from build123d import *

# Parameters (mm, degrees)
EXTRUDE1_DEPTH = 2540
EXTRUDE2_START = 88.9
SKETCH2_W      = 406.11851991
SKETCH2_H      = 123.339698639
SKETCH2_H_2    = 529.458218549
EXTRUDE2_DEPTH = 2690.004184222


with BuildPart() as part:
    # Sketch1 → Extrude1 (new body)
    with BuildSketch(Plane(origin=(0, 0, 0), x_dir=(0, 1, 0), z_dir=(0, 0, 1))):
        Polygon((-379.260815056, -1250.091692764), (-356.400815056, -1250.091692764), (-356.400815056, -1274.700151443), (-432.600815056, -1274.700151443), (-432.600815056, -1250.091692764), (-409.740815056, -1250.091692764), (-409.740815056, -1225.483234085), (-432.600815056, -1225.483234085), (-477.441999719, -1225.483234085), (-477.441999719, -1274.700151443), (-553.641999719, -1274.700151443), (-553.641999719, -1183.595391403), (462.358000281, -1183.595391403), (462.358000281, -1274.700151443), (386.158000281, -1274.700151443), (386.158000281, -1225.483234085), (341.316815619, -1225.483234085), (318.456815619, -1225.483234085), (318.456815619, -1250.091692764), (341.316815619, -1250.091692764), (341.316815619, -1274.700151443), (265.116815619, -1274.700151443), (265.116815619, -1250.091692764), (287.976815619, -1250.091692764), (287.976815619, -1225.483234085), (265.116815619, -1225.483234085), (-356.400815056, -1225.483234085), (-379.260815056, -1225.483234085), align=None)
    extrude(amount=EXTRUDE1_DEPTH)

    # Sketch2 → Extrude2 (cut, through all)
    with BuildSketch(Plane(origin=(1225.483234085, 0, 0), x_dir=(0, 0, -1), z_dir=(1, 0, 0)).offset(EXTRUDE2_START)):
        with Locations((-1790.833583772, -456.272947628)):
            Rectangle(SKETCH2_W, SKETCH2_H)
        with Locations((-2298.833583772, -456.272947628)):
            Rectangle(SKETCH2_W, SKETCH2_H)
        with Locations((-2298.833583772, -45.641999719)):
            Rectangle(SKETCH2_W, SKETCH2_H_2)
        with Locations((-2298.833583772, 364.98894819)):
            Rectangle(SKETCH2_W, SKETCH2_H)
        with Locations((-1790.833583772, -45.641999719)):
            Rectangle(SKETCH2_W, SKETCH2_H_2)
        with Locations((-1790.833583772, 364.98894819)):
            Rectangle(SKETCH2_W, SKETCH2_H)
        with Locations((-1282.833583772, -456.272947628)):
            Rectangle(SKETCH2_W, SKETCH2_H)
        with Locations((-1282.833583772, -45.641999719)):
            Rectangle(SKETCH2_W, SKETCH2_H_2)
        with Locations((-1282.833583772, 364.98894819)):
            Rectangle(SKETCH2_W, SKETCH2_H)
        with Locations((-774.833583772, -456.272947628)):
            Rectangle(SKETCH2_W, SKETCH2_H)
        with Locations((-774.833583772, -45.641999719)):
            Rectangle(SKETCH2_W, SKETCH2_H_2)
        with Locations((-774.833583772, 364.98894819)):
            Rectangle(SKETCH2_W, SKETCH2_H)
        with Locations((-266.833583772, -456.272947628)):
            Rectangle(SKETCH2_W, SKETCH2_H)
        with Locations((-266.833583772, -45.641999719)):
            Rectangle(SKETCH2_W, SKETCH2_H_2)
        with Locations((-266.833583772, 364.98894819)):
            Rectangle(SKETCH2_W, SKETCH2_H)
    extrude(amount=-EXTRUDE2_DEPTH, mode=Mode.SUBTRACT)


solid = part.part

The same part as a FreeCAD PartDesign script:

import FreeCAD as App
import Part
import Sketcher
from FreeCAD import Vector
Q = App.Units.Quantity


def add_polygon(sketch, points):
    """Adds a closed chain of lines whose ends are joined by coincident constraints."""
    first, n = sketch.GeometryCount, len(points)
    for a, b in zip(points, points[1:] + points[:1]):
        sketch.addGeometry(Part.LineSegment(App.Vector(*a, 0), App.Vector(*b, 0)), False)
    for i in range(n):
        sketch.addConstraint(Sketcher.Constraint("Coincident", first + i, 2, first + (i + 1) % n, 1))

doc = App.newDocument("Part")
body = doc.addObject("PartDesign::Body", "Body")

sketch1 = body.newObject("Sketcher::SketchObject", "Sketch")
sketch1.AttachmentSupport = (doc.getObject("XY_Plane"), [""])
sketch1.MapMode = "FlatFace"
add_polygon(sketch1, [(1250.091693, -356.400815), (1250.091693, -379.260815), (1225.483234, -379.260815), (1225.483234, 287.976816), (1250.091693, 287.976816), (1250.091693, 265.116816), (1274.700151, 265.116816), (1274.700151, 341.316816), (1250.091693, 341.316816), (1250.091693, 318.456816), (1225.483234, 318.456816), (1225.483234, 386.158), (1274.700151, 386.158), (1274.700151, 462.358), (1183.595391, 462.358), (1183.595391, -553.642), (1274.700151, -553.642), (1274.700151, -477.442), (1225.483234, -477.442), (1225.483234, -409.740815), (1250.091693, -409.740815), (1250.091693, -432.600815), (1274.700151, -432.600815), (1274.700151, -356.400815)])
sketch1.addConstraint([
    Sketcher.Constraint("Vertical", 0),
    Sketcher.Constraint("Horizontal", 1),
    Sketcher.Constraint("Vertical", 2),
    Sketcher.Constraint("Horizontal", 3),
    Sketcher.Constraint("Vertical", 4),
    Sketcher.Constraint("Horizontal", 5),
    Sketcher.Constraint("Vertical", 6),
    Sketcher.Constraint("Horizontal", 7),
    Sketcher.Constraint("Vertical", 8),
    Sketcher.Constraint("Horizontal", 9),
    Sketcher.Constraint("Vertical", 10),
    Sketcher.Constraint("Horizontal", 11),
    Sketcher.Constraint("Vertical", 12),
    Sketcher.Constraint("Horizontal", 13),
    Sketcher.Constraint("Vertical", 14),
    Sketcher.Constraint("Horizontal", 15),
    Sketcher.Constraint("Vertical", 16),
    Sketcher.Constraint("Horizontal", 17),
    Sketcher.Constraint("Vertical", 18),
    Sketcher.Constraint("Horizontal", 19),
    Sketcher.Constraint("Vertical", 20),
    Sketcher.Constraint("Horizontal", 21),
    Sketcher.Constraint("Vertical", 22),
    Sketcher.Constraint("Horizontal", 23),
    Sketcher.Constraint("Vertical", 0, 2, 3, 2),
    Sketcher.Constraint("Vertical", 4, 2, 7, 2),
    Sketcher.Constraint("Vertical", 2, 2, 9, 2),
    Sketcher.Constraint("Vertical", 6, 2, 11, 2),
    Sketcher.Constraint("Vertical", 12, 2, 15, 2),
    Sketcher.Constraint("Vertical", 10, 2, 17, 2),
    Sketcher.Constraint("Vertical", 8, 2, 19, 2),
    Sketcher.Constraint("Vertical", 16, 2, 21, 2),
    Sketcher.Constraint("Equal", 3, 5),
    Sketcher.Constraint("Equal", 0, 4),
    Sketcher.Constraint("Equal", 4, 8),
    Sketcher.Constraint("Equal", 6, 12),
    Sketcher.Constraint("Equal", 12, 16),
    Sketcher.Constraint("Equal", 10, 18),
    Sketcher.Constraint("Equal", 8, 20),
    Sketcher.Constraint("Equal", 16, 22),
    Sketcher.Constraint("DistanceY", 6, 1, 6, 2, Q("3 in")),
    Sketcher.Constraint("DistanceY", 14, 2, 14, 1, Q("40 in")),
    Sketcher.Constraint("DistanceY", 0, 2, 0, 1, Q("0.9 in")),
    Sketcher.Constraint("DistanceX", 1, 2, 1, 1, Q("24.608459 mm")),
    Sketcher.Constraint("DistanceX", 13, 2, 13, 1, Q("91.10476 mm")),
    Sketcher.Constraint("DistanceY", 2, 1, 2, 2, Q("667.237631 mm")),
    Sketcher.Constraint("DistanceY", -1, 1, 10, 2, Q("386.158 mm")),
    Sketcher.Constraint("DistanceX", -1, 1, 5, 2, Q("1274.700151 mm")),
])
pad1 = body.newObject("PartDesign::Pad", "Pad")
pad1.Profile = sketch1
pad1.Length = Q("100 in")

sketch2 = body.newObject("Sketcher::SketchObject", "Sketch001")
sketch2.AttachmentSupport = (doc.getObject("YZ_Plane"), [""])
sketch2.MapMode = "FlatFace"
sketch2.AttachmentOffset = App.Placement(Vector(0, 0, 1314.383234), App.Rotation())
add_polygon(sketch2, [(-394.603098, 1993.892844), (-517.942797, 1993.892844), (-517.942797, 1587.774324), (-394.603098, 1587.774324)])
add_polygon(sketch2, [(-394.603098, 2501.892844), (-517.942797, 2501.892844), (-517.942797, 2095.774324), (-394.603098, 2095.774324)])
add_polygon(sketch2, [(219.08711, 2501.892844), (-310.371109, 2501.892844), (-310.371109, 2095.774324), (219.08711, 2095.774324)])
add_polygon(sketch2, [(426.658798, 2501.892844), (303.319099, 2501.892844), (303.319099, 2095.774324), (426.658798, 2095.774324)])
add_polygon(sketch2, [(219.08711, 1993.892844), (-310.371109, 1993.892844), (-310.371109, 1587.774324), (219.08711, 1587.774324)])
add_polygon(sketch2, [(426.658798, 1993.892844), (303.319099, 1993.892844), (303.319099, 1587.774324), (426.658798, 1587.774324)])
add_polygon(sketch2, [(-394.603098, 1485.892844), (-517.942797, 1485.892844), (-517.942797, 1079.774324), (-394.603098, 1079.774324)])
add_polygon(sketch2, [(219.08711, 1485.892844), (-310.371109, 1485.892844), (-310.371109, 1079.774324), (219.08711, 1079.774324)])
add_polygon(sketch2, [(426.658798, 1485.892844), (303.319099, 1485.892844), (303.319099, 1079.774324), (426.658798, 1079.774324)])
add_polygon(sketch2, [(-394.603098, 977.892844), (-517.942797, 977.892844), (-517.942797, 571.774324), (-394.603098, 571.774324)])
add_polygon(sketch2, [(219.08711, 977.892844), (-310.371109, 977.892844), (-310.371109, 571.774324), (219.08711, 571.774324)])
add_polygon(sketch2, [(426.658798, 977.892844), (303.319099, 977.892844), (303.319099, 571.774324), (426.658798, 571.774324)])
add_polygon(sketch2, [(-394.603098, 469.892844), (-517.942797, 469.892844), (-517.942797, 63.774324), (-394.603098, 63.774324)])
add_polygon(sketch2, [(219.08711, 469.892844), (-310.371109, 469.892844), (-310.371109, 63.774324), (219.08711, 63.774324)])
add_polygon(sketch2, [(426.658798, 469.892844), (303.319099, 469.892844), (303.319099, 63.774324), (426.658798, 63.774324)])
sketch2.addConstraint([
    Sketcher.Constraint("Horizontal", 0),
    Sketcher.Constraint("Vertical", 1),
    Sketcher.Constraint("Horizontal", 2),
    Sketcher.Constraint("Vertical", 3),
    Sketcher.Constraint("Horizontal", 4),
    Sketcher.Constraint("Vertical", 5),
    Sketcher.Constraint("Horizontal", 6),
    Sketcher.Constraint("Vertical", 7),
    Sketcher.Constraint("Horizontal", 8),
    Sketcher.Constraint("Vertical", 9),
    Sketcher.Constraint("Horizontal", 10),
    Sketcher.Constraint("Vertical", 11),
    Sketcher.Constraint("Horizontal", 12),
    Sketcher.Constraint("Vertical", 13),
    Sketcher.Constraint("Horizontal", 14),
    Sketcher.Constraint("Vertical", 15),
    Sketcher.Constraint("Horizontal", 16),
    Sketcher.Constraint("Vertical", 17),
    Sketcher.Constraint("Horizontal", 18),
    Sketcher.Constraint("Vertical", 19),
    Sketcher.Constraint("Horizontal", 20),
    Sketcher.Constraint("Vertical", 21),
    Sketcher.Constraint("Horizontal", 22),
    Sketcher.Constraint("Vertical", 23),
    Sketcher.Constraint("Horizontal", 24),
    Sketcher.Constraint("Vertical", 25),
    Sketcher.Constraint("Horizontal", 26),
    Sketcher.Constraint("Vertical", 27),
    Sketcher.Constraint("Horizontal", 28),
    Sketcher.Constraint("Vertical", 29),
    Sketcher.Constraint("Horizontal", 30),
    Sketcher.Constraint("Vertical", 31),
    Sketcher.Constraint("Horizontal", 32),
    Sketcher.Constraint("Vertical", 33),
    Sketcher.Constraint("Horizontal", 34),
    Sketcher.Constraint("Vertical", 35),
    Sketcher.Constraint("Horizontal", 36),
    Sketcher.Constraint("Vertical", 37),
    Sketcher.Constraint("Horizontal", 38),
    Sketcher.Constraint("Vertical", 39),
    Sketcher.Constraint("Horizontal", 40),
    Sketcher.Constraint("Vertical", 41),
    Sketcher.Constraint("Horizontal", 42),
    Sketcher.Constraint("Vertical", 43),
    Sketcher.Constraint("Horizontal", 44),
    Sketcher.Constraint("Vertical", 45),
    Sketcher.Constraint("Horizontal", 46),
    Sketcher.Constraint("Vertical", 47),
    Sketcher.Constraint("Horizontal", 48),
    Sketcher.Constraint("Vertical", 49),
    Sketcher.Constraint("Horizontal", 50),
    Sketcher.Constraint("Vertical", 51),
    Sketcher.Constraint("Horizontal", 52),
    Sketcher.Constraint("Vertical", 53),
    Sketcher.Constraint("Horizontal", 54),
    Sketcher.Constraint("Vertical", 55),
    Sketcher.Constraint("Horizontal", 56),
    Sketcher.Constraint("Vertical", 57),
    Sketcher.Constraint("Horizontal", 58),
    Sketcher.Constraint("Vertical", 59),
    Sketcher.Constraint("Horizontal", 7, 2, 8, 2),
    Sketcher.Constraint("Horizontal", 6, 2, 9, 2),
    Sketcher.Constraint("Horizontal", 11, 2, 12, 2),
    Sketcher.Constraint("Horizontal", 10, 2, 13, 2),
    Sketcher.Constraint("Horizontal", 3, 2, 16, 2),
    Sketcher.Constraint("Horizontal", 2, 2, 17, 2),
    Sketcher.Constraint("Horizontal", 19, 2, 20, 2),
    Sketcher.Constraint("Horizontal", 18, 2, 21, 2),
    Sketcher.Constraint("Horizontal", 27, 2, 28, 2),
    Sketcher.Constraint("Horizontal", 26, 2, 29, 2),
    Sketcher.Constraint("Horizontal", 31, 2, 32, 2),
    Sketcher.Constraint("Horizontal", 30, 2, 33, 2),
    Sketcher.Constraint("Horizontal", 39, 2, 40, 2),
    Sketcher.Constraint("Horizontal", 38, 2, 41, 2),
    Sketcher.Constraint("Horizontal", 43, 2, 44, 2),
    Sketcher.Constraint("Horizontal", 42, 2, 45, 2),
    Sketcher.Constraint("Horizontal", 51, 2, 52, 2),
    Sketcher.Constraint("Horizontal", 50, 2, 53, 2),
    Sketcher.Constraint("Horizontal", 55, 2, 56, 2),
    Sketcher.Constraint("Horizontal", 54, 2, 57, 2),
    Sketcher.Constraint("Vertical", 1, 2, 4, 2),
    Sketcher.Constraint("Vertical", 3, 2, 6, 2),
    Sketcher.Constraint("Vertical", 9, 2, 16, 2),
    Sketcher.Constraint("Vertical", 11, 2, 18, 2),
    Sketcher.Constraint("Vertical", 13, 2, 20, 2),
    Sketcher.Constraint("Vertical", 15, 2, 22, 2),
    Sketcher.Constraint("Vertical", 5, 2, 24, 2),
    Sketcher.Constraint("Vertical", 7, 2, 26, 2),
    Sketcher.Constraint("Vertical", 17, 2, 28, 2),
    Sketcher.Constraint("Vertical", 19, 2, 30, 2),
    Sketcher.Constraint("Vertical", 21, 2, 32, 2),
    Sketcher.Constraint("Vertical", 23, 2, 34, 2),
    Sketcher.Constraint("Vertical", 25, 2, 36, 2),
    Sketcher.Constraint("Vertical", 27, 2, 38, 2),
    Sketcher.Constraint("Vertical", 29, 2, 40, 2),
    Sketcher.Constraint("Vertical", 31, 2, 42, 2),
    Sketcher.Constraint("Vertical", 33, 2, 44, 2),
    Sketcher.Constraint("Vertical", 35, 2, 46, 2),
    Sketcher.Constraint("Vertical", 37, 2, 48, 2),
    Sketcher.Constraint("Vertical", 39, 2, 50, 2),
    Sketcher.Constraint("Vertical", 41, 2, 52, 2),
    Sketcher.Constraint("Vertical", 43, 2, 54, 2),
    Sketcher.Constraint("Vertical", 45, 2, 56, 2),
    Sketcher.Constraint("Vertical", 47, 2, 58, 2),
    Sketcher.Constraint("Equal", 6, 12),
    Sketcher.Constraint("Equal", 3, 5),
    Sketcher.Constraint("Equal", 23, 25),
    Sketcher.Constraint("Equal", 35, 37),
    Sketcher.Constraint("Equal", 47, 49),
    Sketcher.Constraint("DistanceY", 0, 2, 4, 2, Q("20 in")),
    Sketcher.Constraint("DistanceY", 24, 2, 0, 2, Q("20 in")),
    Sketcher.Constraint("DistanceY", 36, 2, 24, 2, Q("20 in")),
    Sketcher.Constraint("DistanceY", 48, 2, 36, 2, Q("20 in")),
    Sketcher.Constraint("DistanceX", 0, 2, 0, 1, Q("123.339699 mm")),
    Sketcher.Constraint("DistanceY", -1, 1, 1, 2, Q("62.5108002 in")),
    Sketcher.Constraint("DistanceX", 8, 2, 8, 1, Q("529.458219 mm")),
    Sketcher.Constraint("DistanceY", 1, 2, 1, 1, Q("406.11852 mm")),
    Sketcher.Constraint("DistanceX", 2, 2, -1, 1, Q("394.603098 mm")),
    Sketcher.Constraint("DistanceX", -1, 1, 12, 2, Q("303.319099 mm")),
    Sketcher.Constraint("DistanceX", 8, 2, -1, 1, Q("310.371109 mm")),
])
pocket1 = body.newObject("PartDesign::Pocket", "Pocket")
pocket1.Profile = sketch2
pocket1.Type = "ThroughAll"

doc.recompute()
